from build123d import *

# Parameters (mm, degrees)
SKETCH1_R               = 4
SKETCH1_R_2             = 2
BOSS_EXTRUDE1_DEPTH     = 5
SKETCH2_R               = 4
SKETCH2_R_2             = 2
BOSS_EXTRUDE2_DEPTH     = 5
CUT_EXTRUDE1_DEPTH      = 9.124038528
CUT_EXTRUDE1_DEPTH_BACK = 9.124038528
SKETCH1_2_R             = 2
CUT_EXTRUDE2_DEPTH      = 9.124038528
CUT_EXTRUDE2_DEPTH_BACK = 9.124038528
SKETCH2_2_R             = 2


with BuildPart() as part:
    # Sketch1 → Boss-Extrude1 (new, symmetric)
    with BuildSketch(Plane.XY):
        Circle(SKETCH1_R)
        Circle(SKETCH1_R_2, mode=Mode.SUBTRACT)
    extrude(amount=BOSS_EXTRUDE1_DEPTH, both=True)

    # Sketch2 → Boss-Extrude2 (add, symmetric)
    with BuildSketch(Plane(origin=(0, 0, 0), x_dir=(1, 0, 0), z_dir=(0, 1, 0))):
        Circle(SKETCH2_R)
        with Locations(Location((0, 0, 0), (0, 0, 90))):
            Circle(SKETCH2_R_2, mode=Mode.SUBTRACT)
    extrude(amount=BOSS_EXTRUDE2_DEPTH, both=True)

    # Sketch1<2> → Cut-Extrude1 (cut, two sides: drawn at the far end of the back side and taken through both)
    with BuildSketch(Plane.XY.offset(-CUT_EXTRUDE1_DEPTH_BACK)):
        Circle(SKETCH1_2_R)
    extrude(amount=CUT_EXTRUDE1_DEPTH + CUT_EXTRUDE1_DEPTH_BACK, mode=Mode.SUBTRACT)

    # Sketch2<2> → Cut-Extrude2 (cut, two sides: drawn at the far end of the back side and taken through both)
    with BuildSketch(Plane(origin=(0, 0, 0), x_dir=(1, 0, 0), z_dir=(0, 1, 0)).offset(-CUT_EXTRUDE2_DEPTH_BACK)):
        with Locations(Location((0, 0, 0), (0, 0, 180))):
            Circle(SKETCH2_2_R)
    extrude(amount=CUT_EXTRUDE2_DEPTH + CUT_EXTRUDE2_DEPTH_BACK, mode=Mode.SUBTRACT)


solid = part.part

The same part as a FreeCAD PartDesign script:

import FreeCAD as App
import Part
import Sketcher

V = App.Vector
Q = App.Units.Quantity

doc = App.newDocument("Part")
body = doc.addObject("PartDesign::Body", "Body")

# Sketch on XY plane
sketch1 = body.newObject("Sketcher::SketchObject", "Sketch")
sketch1.AttachmentSupport = (doc.getObject("XY_Plane"), [""])
sketch1.MapMode = "FlatFace"
sketch1.addGeometry(Part.Circle(V(0, 0, 0), V(0, 0, 1), 4), False)
sketch1.addGeometry(Part.Circle(V(0, 0, 0), V(0, 0, 1), 2), False)
sketch1.addConstraint(Sketcher.Constraint("Coincident", 0, 3, -1, 1))
sketch1.addConstraint(Sketcher.Constraint("Coincident", 1, 3, -1, 1))
sketch1.addConstraint(Sketcher.Constraint("Diameter", 0, Q("8 mm")))
sketch1.addConstraint(Sketcher.Constraint("Diameter", 1, Q("4 mm")))
pad1 = body.newObject("PartDesign::Pad", "Pad")
pad1.Profile = sketch1
pad1.Length = 10
pad1.Midplane = True

# Sketch on XZ plane
sketch2 = body.newObject("Sketcher::SketchObject", "Sketch001")
sketch2.AttachmentSupport = (doc.getObject("XZ_Plane"), [""])
sketch2.MapMode = "FlatFace"
sketch2.addGeometry(Part.Circle(V(0, 0, 0), V(0, 0, 1), 4), False)
sketch2.addGeometry(Part.Circle(V(0, 0, 0), V(0, 0, 1), 2), False)
sketch2.addConstraint(Sketcher.Constraint("Coincident", 0, 3, -1, 1))
sketch2.addConstraint(Sketcher.Constraint("Coincident", 1, 3, -1, 1))
sketch2.addConstraint(Sketcher.Constraint("Diameter", 0, Q("8 mm")))
sketch2.addConstraint(Sketcher.Constraint("Diameter", 1, Q("4 mm")))
pad2 = body.newObject("PartDesign::Pad", "Pad001")
pad2.Profile = sketch2
pad2.Length = 10
pad2.Midplane = True

# Sketch on XY plane
sketch3 = body.newObject("Sketcher::SketchObject", "Sketch002")
sketch3.AttachmentSupport = (doc.getObject("XY_Plane"), [""])
sketch3.MapMode = "FlatFace"
sketch3.addGeometry(Part.Circle(V(0, 0, 0), V(0, 0, 1), 2), False)
sketch3.addConstraint(Sketcher.Constraint("Coincident", 0, 3, -1, 1))
sketch3.addConstraint(Sketcher.Constraint("Diameter", 0, Q("4 mm")))
pocket1 = body.newObject("PartDesign::Pocket", "Pocket")
pocket1.Profile = sketch3
pocket1.Type = "ThroughAll"
pocket1.Midplane = True

# Sketch on XZ plane
sketch4 = body.newObject("Sketcher::SketchObject", "Sketch003")
sketch4.AttachmentSupport = (doc.getObject("XZ_Plane"), [""])
sketch4.MapMode = "FlatFace"
sketch4.addGeometry(Part.Circle(V(0, 0, 0), V(0, 0, 1), 2), False)
sketch4.addConstraint(Sketcher.Constraint("Coincident", 0, 3, -1, 1))
sketch4.addConstraint(Sketcher.Constraint("Diameter", 0, Q("4 mm")))
pocket2 = body.newObject("PartDesign::Pocket", "Pocket001")
pocket2.Profile = sketch4
pocket2.Type = "ThroughAll"
pocket2.Midplane = True

doc.recompute()
